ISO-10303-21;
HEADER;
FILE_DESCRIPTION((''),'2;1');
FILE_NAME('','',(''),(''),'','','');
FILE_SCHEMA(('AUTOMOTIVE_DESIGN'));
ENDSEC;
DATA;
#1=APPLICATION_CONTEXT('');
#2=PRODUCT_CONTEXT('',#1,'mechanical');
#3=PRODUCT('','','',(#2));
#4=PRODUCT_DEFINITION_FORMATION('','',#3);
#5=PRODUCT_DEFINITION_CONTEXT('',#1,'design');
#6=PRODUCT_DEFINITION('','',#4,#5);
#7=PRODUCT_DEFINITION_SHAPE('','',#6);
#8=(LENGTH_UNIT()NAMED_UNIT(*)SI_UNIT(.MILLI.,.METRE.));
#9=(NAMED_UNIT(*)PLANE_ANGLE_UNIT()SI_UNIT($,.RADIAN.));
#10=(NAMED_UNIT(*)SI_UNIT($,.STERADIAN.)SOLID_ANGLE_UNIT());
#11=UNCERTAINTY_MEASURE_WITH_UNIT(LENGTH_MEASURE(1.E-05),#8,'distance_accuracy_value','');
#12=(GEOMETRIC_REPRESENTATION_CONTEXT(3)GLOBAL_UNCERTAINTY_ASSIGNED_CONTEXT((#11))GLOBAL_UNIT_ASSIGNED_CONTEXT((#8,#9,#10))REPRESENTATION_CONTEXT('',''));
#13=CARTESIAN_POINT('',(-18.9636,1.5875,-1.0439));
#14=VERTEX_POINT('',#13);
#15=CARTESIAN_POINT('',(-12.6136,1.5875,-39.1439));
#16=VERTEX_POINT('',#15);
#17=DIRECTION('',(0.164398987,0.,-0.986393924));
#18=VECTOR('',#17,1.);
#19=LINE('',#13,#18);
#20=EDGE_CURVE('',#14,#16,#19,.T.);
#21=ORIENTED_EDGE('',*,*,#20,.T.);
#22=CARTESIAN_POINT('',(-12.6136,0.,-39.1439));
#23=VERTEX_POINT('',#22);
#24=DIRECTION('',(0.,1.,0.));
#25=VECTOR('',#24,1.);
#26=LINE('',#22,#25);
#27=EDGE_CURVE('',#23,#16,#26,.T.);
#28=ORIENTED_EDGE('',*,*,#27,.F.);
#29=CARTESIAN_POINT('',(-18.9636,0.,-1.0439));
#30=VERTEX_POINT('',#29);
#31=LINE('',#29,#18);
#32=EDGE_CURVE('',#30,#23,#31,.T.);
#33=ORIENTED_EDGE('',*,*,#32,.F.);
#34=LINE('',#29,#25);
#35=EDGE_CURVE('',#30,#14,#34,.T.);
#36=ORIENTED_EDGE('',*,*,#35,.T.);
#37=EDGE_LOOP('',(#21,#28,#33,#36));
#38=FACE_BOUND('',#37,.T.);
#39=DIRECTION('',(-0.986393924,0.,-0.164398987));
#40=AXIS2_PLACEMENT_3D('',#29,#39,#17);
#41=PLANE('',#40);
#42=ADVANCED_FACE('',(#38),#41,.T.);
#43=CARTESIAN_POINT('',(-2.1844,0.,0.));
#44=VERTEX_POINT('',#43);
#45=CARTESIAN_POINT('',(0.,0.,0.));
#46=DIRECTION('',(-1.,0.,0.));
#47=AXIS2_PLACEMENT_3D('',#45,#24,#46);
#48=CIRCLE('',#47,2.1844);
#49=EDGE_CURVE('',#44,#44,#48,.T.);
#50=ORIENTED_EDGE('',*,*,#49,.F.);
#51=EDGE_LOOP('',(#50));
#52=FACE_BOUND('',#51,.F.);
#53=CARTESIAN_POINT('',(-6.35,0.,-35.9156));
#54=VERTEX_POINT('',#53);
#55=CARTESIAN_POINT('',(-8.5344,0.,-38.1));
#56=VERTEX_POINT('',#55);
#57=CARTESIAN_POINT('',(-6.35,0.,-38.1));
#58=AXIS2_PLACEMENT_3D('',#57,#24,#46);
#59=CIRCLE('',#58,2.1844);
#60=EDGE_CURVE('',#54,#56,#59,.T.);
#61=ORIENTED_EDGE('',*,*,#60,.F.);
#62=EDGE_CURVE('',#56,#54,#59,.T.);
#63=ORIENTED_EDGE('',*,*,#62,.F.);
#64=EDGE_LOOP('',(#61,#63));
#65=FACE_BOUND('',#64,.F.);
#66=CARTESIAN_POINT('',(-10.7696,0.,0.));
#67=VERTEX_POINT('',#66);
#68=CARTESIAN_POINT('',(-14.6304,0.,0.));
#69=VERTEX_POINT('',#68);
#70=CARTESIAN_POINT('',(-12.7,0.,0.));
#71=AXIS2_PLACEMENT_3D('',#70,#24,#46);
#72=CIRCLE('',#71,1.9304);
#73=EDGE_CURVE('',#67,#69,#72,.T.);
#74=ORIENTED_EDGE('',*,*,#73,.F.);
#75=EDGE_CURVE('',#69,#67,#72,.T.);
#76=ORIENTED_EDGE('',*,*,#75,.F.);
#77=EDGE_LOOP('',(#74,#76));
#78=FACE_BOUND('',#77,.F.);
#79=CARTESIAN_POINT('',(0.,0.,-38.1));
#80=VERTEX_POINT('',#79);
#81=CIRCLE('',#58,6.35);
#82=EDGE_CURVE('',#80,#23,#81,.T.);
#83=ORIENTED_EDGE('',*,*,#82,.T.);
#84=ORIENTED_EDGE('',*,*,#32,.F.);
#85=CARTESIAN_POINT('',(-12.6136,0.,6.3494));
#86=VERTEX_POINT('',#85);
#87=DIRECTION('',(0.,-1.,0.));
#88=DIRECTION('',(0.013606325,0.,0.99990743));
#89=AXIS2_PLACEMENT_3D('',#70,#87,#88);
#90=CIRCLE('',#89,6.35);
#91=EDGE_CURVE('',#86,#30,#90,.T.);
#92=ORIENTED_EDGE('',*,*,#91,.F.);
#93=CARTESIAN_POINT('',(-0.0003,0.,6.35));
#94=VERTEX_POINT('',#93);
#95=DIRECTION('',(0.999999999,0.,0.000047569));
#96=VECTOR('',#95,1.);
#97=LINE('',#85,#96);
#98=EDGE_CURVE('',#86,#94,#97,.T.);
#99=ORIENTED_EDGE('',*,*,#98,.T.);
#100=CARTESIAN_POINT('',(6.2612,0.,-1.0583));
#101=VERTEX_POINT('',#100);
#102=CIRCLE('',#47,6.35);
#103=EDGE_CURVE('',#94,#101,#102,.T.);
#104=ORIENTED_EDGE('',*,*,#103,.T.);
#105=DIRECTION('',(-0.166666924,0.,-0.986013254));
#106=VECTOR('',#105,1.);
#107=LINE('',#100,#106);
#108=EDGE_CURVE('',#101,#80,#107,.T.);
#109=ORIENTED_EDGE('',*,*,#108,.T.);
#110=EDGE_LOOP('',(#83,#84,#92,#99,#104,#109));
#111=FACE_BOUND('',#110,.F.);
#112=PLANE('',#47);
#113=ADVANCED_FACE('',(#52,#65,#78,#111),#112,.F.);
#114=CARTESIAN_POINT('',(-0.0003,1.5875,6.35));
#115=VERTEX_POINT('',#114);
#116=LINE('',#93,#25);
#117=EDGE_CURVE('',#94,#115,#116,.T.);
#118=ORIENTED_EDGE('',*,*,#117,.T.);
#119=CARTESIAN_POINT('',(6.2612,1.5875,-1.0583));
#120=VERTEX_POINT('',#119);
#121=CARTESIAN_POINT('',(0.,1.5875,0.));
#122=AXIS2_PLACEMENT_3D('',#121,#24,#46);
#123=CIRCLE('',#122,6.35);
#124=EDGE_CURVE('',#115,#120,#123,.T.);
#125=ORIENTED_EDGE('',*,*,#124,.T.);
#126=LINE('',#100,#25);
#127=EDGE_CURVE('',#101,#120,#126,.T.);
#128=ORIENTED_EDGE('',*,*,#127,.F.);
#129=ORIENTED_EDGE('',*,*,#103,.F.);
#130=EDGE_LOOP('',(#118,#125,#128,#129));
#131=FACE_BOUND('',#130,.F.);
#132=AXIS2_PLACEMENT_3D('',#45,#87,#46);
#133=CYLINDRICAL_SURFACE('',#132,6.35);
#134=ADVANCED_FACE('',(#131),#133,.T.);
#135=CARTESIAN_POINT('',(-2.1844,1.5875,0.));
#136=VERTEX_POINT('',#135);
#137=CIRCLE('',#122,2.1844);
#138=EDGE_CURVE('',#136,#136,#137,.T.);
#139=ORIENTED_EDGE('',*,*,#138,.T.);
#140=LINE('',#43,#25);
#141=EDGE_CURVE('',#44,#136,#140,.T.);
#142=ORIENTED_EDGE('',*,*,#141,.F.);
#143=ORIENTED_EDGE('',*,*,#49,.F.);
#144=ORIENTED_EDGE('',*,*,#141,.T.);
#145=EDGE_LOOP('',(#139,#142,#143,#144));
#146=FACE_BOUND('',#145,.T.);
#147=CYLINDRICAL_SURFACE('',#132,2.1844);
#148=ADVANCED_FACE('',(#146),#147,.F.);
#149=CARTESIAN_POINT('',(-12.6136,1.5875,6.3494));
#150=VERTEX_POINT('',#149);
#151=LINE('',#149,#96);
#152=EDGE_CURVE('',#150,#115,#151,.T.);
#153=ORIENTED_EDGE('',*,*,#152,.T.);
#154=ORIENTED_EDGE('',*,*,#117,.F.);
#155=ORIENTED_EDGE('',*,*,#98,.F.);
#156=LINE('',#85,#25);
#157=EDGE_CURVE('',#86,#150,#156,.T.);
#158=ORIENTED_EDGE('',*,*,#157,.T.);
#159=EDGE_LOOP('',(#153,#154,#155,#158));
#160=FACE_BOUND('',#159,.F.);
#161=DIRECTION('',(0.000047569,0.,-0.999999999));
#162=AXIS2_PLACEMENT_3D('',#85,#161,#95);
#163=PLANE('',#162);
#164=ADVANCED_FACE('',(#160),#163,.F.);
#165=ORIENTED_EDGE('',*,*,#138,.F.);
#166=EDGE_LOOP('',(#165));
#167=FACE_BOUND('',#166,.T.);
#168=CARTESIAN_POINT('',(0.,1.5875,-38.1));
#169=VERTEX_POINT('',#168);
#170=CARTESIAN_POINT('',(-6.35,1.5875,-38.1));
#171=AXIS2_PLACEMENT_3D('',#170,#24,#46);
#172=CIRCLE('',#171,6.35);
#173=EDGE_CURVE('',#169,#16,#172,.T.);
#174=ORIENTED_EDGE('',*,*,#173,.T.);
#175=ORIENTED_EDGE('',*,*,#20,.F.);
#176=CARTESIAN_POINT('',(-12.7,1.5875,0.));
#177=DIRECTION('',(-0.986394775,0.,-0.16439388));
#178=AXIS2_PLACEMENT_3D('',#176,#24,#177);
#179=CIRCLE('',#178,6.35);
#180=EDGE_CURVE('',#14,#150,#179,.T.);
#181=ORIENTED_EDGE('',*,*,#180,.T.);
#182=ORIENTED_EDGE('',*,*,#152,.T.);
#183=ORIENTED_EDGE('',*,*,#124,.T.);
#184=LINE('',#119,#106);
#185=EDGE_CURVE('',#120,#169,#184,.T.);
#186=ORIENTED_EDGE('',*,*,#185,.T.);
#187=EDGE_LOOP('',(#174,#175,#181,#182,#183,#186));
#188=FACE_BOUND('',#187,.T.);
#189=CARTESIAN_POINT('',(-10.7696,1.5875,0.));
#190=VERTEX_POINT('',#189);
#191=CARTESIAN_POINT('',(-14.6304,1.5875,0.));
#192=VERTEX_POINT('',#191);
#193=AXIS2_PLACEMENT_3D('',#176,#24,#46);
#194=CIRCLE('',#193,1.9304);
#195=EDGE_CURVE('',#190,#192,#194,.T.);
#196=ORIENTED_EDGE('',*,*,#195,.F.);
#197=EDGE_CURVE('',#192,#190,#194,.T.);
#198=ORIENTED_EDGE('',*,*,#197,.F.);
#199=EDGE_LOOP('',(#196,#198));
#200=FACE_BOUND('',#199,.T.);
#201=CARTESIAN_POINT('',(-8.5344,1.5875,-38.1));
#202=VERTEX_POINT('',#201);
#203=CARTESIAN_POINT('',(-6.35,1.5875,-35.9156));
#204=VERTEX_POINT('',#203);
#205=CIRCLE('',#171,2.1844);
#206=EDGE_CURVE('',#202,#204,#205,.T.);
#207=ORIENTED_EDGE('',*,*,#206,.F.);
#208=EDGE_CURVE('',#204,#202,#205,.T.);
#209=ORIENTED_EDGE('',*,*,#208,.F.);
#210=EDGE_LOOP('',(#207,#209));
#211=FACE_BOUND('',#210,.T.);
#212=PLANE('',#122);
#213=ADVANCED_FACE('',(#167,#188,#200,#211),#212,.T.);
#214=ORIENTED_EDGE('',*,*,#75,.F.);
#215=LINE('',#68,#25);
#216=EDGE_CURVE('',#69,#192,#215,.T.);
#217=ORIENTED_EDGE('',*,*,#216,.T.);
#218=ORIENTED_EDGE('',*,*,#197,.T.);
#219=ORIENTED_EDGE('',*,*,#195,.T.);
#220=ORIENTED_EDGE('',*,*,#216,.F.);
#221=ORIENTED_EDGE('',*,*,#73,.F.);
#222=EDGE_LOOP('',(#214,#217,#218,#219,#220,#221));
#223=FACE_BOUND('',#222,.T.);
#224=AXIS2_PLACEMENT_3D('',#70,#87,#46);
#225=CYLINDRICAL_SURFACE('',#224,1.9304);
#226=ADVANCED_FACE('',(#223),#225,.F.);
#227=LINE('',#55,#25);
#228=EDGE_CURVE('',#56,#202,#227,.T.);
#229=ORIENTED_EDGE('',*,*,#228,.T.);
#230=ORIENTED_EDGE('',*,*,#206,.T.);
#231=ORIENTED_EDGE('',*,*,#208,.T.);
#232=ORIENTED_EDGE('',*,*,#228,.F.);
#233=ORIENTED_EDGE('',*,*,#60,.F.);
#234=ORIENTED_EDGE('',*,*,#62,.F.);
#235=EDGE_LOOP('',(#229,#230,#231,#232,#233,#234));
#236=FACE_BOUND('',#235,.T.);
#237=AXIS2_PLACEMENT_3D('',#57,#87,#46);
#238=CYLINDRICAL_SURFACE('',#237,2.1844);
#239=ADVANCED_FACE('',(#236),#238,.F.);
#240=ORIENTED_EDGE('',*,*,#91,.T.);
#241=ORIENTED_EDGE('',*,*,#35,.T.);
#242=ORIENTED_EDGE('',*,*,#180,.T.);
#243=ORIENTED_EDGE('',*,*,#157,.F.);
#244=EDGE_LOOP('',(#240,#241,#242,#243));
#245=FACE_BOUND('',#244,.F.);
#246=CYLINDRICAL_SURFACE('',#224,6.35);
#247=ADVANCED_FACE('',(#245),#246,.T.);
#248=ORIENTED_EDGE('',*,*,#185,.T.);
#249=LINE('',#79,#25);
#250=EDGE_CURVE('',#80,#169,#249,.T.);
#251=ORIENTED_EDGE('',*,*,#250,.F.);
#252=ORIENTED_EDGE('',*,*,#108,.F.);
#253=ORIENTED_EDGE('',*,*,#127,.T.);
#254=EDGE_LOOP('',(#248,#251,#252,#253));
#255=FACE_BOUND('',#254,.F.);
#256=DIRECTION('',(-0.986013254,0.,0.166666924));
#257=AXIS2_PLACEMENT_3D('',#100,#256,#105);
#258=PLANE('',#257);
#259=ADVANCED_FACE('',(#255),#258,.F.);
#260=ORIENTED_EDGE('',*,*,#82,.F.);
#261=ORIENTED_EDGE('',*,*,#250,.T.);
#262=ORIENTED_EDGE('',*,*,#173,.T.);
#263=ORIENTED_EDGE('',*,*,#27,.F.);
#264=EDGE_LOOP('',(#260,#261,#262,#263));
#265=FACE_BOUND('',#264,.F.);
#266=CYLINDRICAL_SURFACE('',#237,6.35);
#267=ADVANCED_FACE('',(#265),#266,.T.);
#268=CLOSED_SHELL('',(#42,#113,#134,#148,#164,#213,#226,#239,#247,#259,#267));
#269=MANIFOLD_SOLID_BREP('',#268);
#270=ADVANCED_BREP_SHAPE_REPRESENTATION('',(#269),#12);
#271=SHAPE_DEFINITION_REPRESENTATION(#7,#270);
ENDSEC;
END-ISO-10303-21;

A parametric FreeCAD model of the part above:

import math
import FreeCAD as App
import Part
import Sketcher

V = App.Vector
Q = App.Units.Quantity

doc = App.newDocument("Part")
params = doc.addObject("Spreadsheet::Sheet", "Params")
for row, (alias, value) in enumerate([
    ("sketch1_radius", "0.25 in"),
    ("sketch1_diameter", "0.172 in"),
    ("sketch1_diameter2", "0.152 in"),
    ("pad1_length", "0.0625 in"),
], start=1):
    params.set(f"A{row}", alias)
    params.set(f"B{row}", "=" + value)
    params.setAlias(f"B{row}", alias)

body = doc.addObject("PartDesign::Body", "Body")

sketch1 = body.newObject("Sketcher::SketchObject", "Sketch")
sketch1.AttachmentSupport = (doc.getObject("XZ_Plane"), [""])
sketch1.MapMode = "FlatFace"
sketch1.addGeometry([
    Part.ArcOfCircle(Part.Circle(V(0, 0, 0), V(0, 0, 1), 6.3), math.radians(-10), math.radians(90)),
    Part.LineSegment(V(6.3, -1.1, 0), V(0, -38.1, 0)),
    Part.ArcOfCircle(Part.Circle(V(-6.3, -38.1, 0), V(0, 0, 1), 6.3), math.radians(-171), math.radians(0)),
    Part.LineSegment(V(-12.6, -39.1, 0), V(-19, -1, 0)),
    Part.ArcOfCircle(Part.Circle(V(-12.7, 0, 0), V(0, 0, 1), 6.3), math.radians(89), math.radians(189)),
    Part.LineSegment(V(-12.6, 6.3, 0), V(0, 6.3, 0)),
    Part.Circle(V(0, 0, 0), V(0, 0, 1), 2.2),
    Part.Circle(V(-6.3, -38.1, 0), V(0, 0, 1), 2.2),
    Part.Circle(V(-12.7, 0, 0), V(0, 0, 1), 1.9),
], False)
sketch1.addConstraint([
    Sketcher.Constraint("Tangent", 0, 1, 1, 1),
    Sketcher.Constraint("Coincident", 1, 2, 2, 2),
    Sketcher.Constraint("Tangent", 2, 1, 3, 1),
    Sketcher.Constraint("Tangent", 3, 2, 4, 2),
    Sketcher.Constraint("Coincident", 4, 1, 5, 1),
    Sketcher.Constraint("Tangent", 5, 2, 0, 2),
    Sketcher.Constraint("Coincident", 0, 3, -1, 1),
    Sketcher.Constraint("Coincident", 6, 3, -1, 1),
    Sketcher.Constraint("Coincident", 7, 3, 2, 3),
    Sketcher.Constraint("Coincident", 8, 3, 4, 3),
    Sketcher.Constraint("Equal", 0, 2),
    Sketcher.Constraint("Equal", 2, 4),
    Sketcher.Constraint("Equal", 6, 7),
    Sketcher.Constraint("PointOnObject", 4, 3, -1),
    Sketcher.Constraint("PointOnObject", 1, 2, -2),
    Sketcher.Constraint("Horizontal", 7, 3, 1, 2),
    Sketcher.Constraint("Vertical", 2, 1, 4, 1),
    Sketcher.Constraint("Radius", 0, Q("0.25 in")),
    Sketcher.Constraint("Diameter", 6, Q("0.172 in")),
    Sketcher.Constraint("Diameter", 8, Q("0.152 in")),
    Sketcher.Constraint("DistanceY", 2, 3, -1, 1, Q("1.5 in")),
    Sketcher.Constraint("DistanceX", 4, 3, -1, 1, Q("0.5 in")),
])
sketch1.setExpression("Constraints[17]", "Params.sketch1_radius")
sketch1.setExpression("Constraints[18]", "Params.sketch1_diameter")
sketch1.setExpression("Constraints[19]", "Params.sketch1_diameter2")
pad1 = body.newObject("PartDesign::Pad", "Pad")
pad1.Profile = sketch1
pad1.setExpression("Length", "Params.pad1_length")
pad1.Reversed = True

doc.recompute()
